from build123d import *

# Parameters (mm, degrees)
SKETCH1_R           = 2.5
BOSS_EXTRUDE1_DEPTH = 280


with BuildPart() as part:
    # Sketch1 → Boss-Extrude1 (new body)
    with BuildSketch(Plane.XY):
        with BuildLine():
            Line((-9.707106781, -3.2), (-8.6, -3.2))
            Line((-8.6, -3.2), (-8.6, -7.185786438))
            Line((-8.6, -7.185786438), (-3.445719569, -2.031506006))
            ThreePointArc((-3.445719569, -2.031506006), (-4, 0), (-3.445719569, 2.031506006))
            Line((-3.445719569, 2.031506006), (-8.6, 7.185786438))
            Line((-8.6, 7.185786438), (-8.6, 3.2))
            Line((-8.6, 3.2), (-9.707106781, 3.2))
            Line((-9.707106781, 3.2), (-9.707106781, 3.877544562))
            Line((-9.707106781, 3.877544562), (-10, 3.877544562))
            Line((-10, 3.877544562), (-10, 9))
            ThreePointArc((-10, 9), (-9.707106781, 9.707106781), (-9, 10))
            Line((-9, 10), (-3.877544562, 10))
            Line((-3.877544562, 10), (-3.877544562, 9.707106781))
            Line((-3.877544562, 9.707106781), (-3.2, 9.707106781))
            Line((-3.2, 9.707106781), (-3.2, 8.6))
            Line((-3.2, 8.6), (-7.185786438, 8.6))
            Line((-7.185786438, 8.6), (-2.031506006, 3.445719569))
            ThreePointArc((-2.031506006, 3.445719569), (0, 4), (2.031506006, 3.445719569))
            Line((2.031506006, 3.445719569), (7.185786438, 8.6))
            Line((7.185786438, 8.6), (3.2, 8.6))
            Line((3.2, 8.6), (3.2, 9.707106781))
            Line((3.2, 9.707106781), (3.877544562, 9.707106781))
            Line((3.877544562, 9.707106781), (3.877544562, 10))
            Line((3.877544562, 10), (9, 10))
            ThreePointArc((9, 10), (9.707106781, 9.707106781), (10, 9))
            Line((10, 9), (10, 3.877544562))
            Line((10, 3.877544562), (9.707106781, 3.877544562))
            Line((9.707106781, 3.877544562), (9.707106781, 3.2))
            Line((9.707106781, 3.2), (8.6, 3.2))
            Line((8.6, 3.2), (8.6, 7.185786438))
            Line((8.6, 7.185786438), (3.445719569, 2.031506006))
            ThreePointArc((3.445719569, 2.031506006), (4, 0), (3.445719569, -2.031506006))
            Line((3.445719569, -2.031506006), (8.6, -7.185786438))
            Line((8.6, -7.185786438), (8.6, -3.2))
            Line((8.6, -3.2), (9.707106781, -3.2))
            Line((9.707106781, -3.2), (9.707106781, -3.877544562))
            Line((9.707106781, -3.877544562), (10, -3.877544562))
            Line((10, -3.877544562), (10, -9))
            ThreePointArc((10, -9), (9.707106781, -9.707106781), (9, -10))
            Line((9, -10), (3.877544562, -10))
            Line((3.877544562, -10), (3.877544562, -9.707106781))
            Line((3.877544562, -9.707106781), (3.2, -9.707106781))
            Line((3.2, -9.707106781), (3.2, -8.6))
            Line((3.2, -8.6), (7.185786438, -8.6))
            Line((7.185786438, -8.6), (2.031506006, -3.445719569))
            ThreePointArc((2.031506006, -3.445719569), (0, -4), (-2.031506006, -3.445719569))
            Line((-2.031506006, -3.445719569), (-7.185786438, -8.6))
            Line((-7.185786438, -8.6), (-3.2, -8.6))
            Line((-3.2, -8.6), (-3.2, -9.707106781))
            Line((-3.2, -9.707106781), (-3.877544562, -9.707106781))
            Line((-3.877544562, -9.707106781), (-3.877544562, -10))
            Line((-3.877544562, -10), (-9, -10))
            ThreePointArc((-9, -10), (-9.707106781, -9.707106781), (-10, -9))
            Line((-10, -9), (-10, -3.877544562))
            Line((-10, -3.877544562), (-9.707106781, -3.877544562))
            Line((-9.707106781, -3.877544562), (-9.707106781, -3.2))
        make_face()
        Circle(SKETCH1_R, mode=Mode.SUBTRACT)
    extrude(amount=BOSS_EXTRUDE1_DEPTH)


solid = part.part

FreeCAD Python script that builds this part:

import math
import FreeCAD as App
import Part
import Sketcher
Q = App.Units.Quantity

doc = App.newDocument("Part")
body = doc.addObject("PartDesign::Body", "Body")

# Sketch on XY plane
sketch1 = body.newObject("Sketcher::SketchObject", "Sketch")
sketch1.AttachmentSupport = (doc.getObject("XY_Plane"), [""])
sketch1.MapMode = "FlatFace"
sketch1.addGeometry([
    Part.LineSegment(App.Vector(-8.6, -3.2, 0), App.Vector(-9.71, -3.2, 0)),  # 0
    Part.LineSegment(App.Vector(-9.71, -3.2, 0), App.Vector(-9.71, -3.88, 0)),  # 1
    Part.LineSegment(App.Vector(-9.71, -3.88, 0), App.Vector(-10, -3.88, 0)),  # 2
    Part.LineSegment(App.Vector(-10, -3.88, 0), App.Vector(-10, -9, 0)),  # 3
    Part.ArcOfCircle(Part.Circle(App.Vector(-9, -9, 0), App.Vector(0, 0, 1), 1), math.radians(-180), math.radians(-90)),  # 4
    Part.LineSegment(App.Vector(-9, -10, 0), App.Vector(-3.88, -10, 0)),  # 5
    Part.LineSegment(App.Vector(-3.88, -10, 0), App.Vector(-3.88, -9.71, 0)),  # 6
    Part.LineSegment(App.Vector(-3.88, -9.71, 0), App.Vector(-3.2, -9.71, 0)),  # 7
    Part.LineSegment(App.Vector(-3.2, -9.71, 0), App.Vector(-3.2, -8.6, 0)),  # 8
    Part.LineSegment(App.Vector(-3.2, -8.6, 0), App.Vector(-7.19, -8.6, 0)),  # 9
    Part.LineSegment(App.Vector(-7.19, -8.6, 0), App.Vector(-2.03, -3.45, 0)),  # 10
    Part.ArcOfCircle(Part.Circle(App.Vector(0, 0, 0), App.Vector(0, 0, 1), 4), math.radians(-121), math.radians(-59)),  # 11
    Part.LineSegment(App.Vector(2.03, -3.45, 0), App.Vector(7.19, -8.6, 0)),  # 12
    Part.LineSegment(App.Vector(7.19, -8.6, 0), App.Vector(3.2, -8.6, 0)),  # 13
    Part.LineSegment(App.Vector(3.2, -8.6, 0), App.Vector(3.2, -9.71, 0)),  # 14
    Part.LineSegment(App.Vector(3.2, -9.71, 0), App.Vector(3.88, -9.71, 0)),  # 15
    Part.LineSegment(App.Vector(3.88, -9.71, 0), App.Vector(3.88, -10, 0)),  # 16
    Part.LineSegment(App.Vector(3.88, -10, 0), App.Vector(9, -10, 0)),  # 17
    Part.ArcOfCircle(Part.Circle(App.Vector(9, -9, 0), App.Vector(0, 0, 1), 1), math.radians(-90), math.radians(0)),  # 18
    Part.LineSegment(App.Vector(10, -9, 0), App.Vector(10, -3.88, 0)),  # 19
    Part.LineSegment(App.Vector(10, -3.88, 0), App.Vector(9.71, -3.88, 0)),  # 20
    Part.LineSegment(App.Vector(9.71, -3.88, 0), App.Vector(9.71, -3.2, 0)),  # 21
    Part.LineSegment(App.Vector(9.71, -3.2, 0), App.Vector(8.6, -3.2, 0)),  # 22
    Part.LineSegment(App.Vector(8.6, -3.2, 0), App.Vector(8.6, -7.19, 0)),  # 23
    Part.LineSegment(App.Vector(8.6, -7.19, 0), App.Vector(3.45, -2.03, 0)),  # 24
    Part.ArcOfCircle(Part.Circle(App.Vector(0, 0, 0), App.Vector(0, 0, 1), 4), math.radians(-31), math.radians(31)),  # 25
    Part.LineSegment(App.Vector(3.45, 2.03, 0), App.Vector(8.6, 7.19, 0)),  # 26
    Part.LineSegment(App.Vector(8.6, 7.19, 0), App.Vector(8.6, 3.2, 0)),  # 27
    Part.LineSegment(App.Vector(8.6, 3.2, 0), App.Vector(9.71, 3.2, 0)),  # 28
    Part.LineSegment(App.Vector(9.71, 3.2, 0), App.Vector(9.71, 3.88, 0)),  # 29
    Part.LineSegment(App.Vector(9.71, 3.88, 0), App.Vector(10, 3.88, 0)),  # 30
    Part.LineSegment(App.Vector(10, 3.88, 0), App.Vector(10, 9, 0)),  # 31
    Part.ArcOfCircle(Part.Circle(App.Vector(9, 9, 0), App.Vector(0, 0, 1), 1), math.radians(0), math.radians(90)),  # 32
    Part.LineSegment(App.Vector(9, 10, 0), App.Vector(3.88, 10, 0)),  # 33
    Part.LineSegment(App.Vector(3.88, 10, 0), App.Vector(3.88, 9.71, 0)),  # 34
    Part.LineSegment(App.Vector(3.88, 9.71, 0), App.Vector(3.2, 9.71, 0)),  # 35
    Part.LineSegment(App.Vector(3.2, 9.71, 0), App.Vector(3.2, 8.6, 0)),  # 36
    Part.LineSegment(App.Vector(3.2, 8.6, 0), App.Vector(7.19, 8.6, 0)),  # 37
    Part.LineSegment(App.Vector(7.19, 8.6, 0), App.Vector(2.03, 3.45, 0)),  # 38
    Part.ArcOfCircle(Part.Circle(App.Vector(0, 0, 0), App.Vector(0, 0, 1), 4), math.radians(59), math.radians(121)),  # 39
    Part.LineSegment(App.Vector(-2.03, 3.45, 0), App.Vector(-7.19, 8.6, 0)),  # 40
    Part.LineSegment(App.Vector(-7.19, 8.6, 0), App.Vector(-3.2, 8.6, 0)),  # 41
    Part.LineSegment(App.Vector(-3.2, 8.6, 0), App.Vector(-3.2, 9.71, 0)),  # 42
    Part.LineSegment(App.Vector(-3.2, 9.71, 0), App.Vector(-3.88, 9.71, 0)),  # 43
    Part.LineSegment(App.Vector(-3.88, 9.71, 0), App.Vector(-3.88, 10, 0)),  # 44
    Part.LineSegment(App.Vector(-3.88, 10, 0), App.Vector(-9, 10, 0)),  # 45
    Part.ArcOfCircle(Part.Circle(App.Vector(-9, 9, 0), App.Vector(0, 0, 1), 1), math.radians(90), math.radians(180)),  # 46
    Part.LineSegment(App.Vector(-10, 9, 0), App.Vector(-10, 3.88, 0)),  # 47
    Part.LineSegment(App.Vector(-10, 3.88, 0), App.Vector(-9.71, 3.88, 0)),  # 48
    Part.LineSegment(App.Vector(-9.71, 3.88, 0), App.Vector(-9.71, 3.2, 0)),  # 49
    Part.LineSegment(App.Vector(-9.71, 3.2, 0), App.Vector(-8.6, 3.2, 0)),  # 50
    Part.LineSegment(App.Vector(-8.6, 3.2, 0), App.Vector(-8.6, 7.19, 0)),  # 51
    Part.LineSegment(App.Vector(-8.6, 7.19, 0), App.Vector(-3.45, 2.03, 0)),  # 52
    Part.ArcOfCircle(Part.Circle(App.Vector(0, 0, 0), App.Vector(0, 0, 1), 4), math.radians(149), math.radians(211)),  # 53
    Part.LineSegment(App.Vector(-3.45, -2.03, 0), App.Vector(-8.6, -7.19, 0)),  # 54
    Part.LineSegment(App.Vector(-8.6, -7.19, 0), App.Vector(-8.6, -3.2, 0)),  # 55
    Part.Circle(App.Vector(0, 0, 0), App.Vector(0, 0, 1), 2.5),  # 56
], False)
sketch1.addConstraint([
    Sketcher.Constraint("Coincident", 0, 2, 1, 1),
    Sketcher.Constraint("Coincident", 1, 2, 2, 1),
    Sketcher.Constraint("Coincident", 2, 2, 3, 1),
    Sketcher.Constraint("Tangent", 3, 2, 4, 1),
    Sketcher.Constraint("Tangent", 4, 2, 5, 1),
    Sketcher.Constraint("Coincident", 5, 2, 6, 1),
    Sketcher.Constraint("Coincident", 6, 2, 7, 1),
    Sketcher.Constraint("Coincident", 7, 2, 8, 1),
    Sketcher.Constraint("Coincident", 8, 2, 9, 1),
    Sketcher.Constraint("Coincident", 9, 2, 10, 1),
    Sketcher.Constraint("Coincident", 10, 2, 11, 1),
    Sketcher.Constraint("Coincident", 11, 2, 12, 1),
    Sketcher.Constraint("Coincident", 12, 2, 13, 1),
    Sketcher.Constraint("Coincident", 13, 2, 14, 1),
    Sketcher.Constraint("Coincident", 14, 2, 15, 1),
    Sketcher.Constraint("Coincident", 15, 2, 16, 1),
    Sketcher.Constraint("Coincident", 16, 2, 17, 1),
    Sketcher.Constraint("Tangent", 17, 2, 18, 1),
    Sketcher.Constraint("Tangent", 18, 2, 19, 1),
    Sketcher.Constraint("Coincident", 19, 2, 20, 1),
    Sketcher.Constraint("Coincident", 20, 2, 21, 1),
    Sketcher.Constraint("Coincident", 21, 2, 22, 1),
    Sketcher.Constraint("Coincident", 22, 2, 23, 1),
    Sketcher.Constraint("Coincident", 23, 2, 24, 1),
    Sketcher.Constraint("Coincident", 24, 2, 25, 1),
    Sketcher.Constraint("Coincident", 25, 2, 26, 1),
    Sketcher.Constraint("Coincident", 26, 2, 27, 1),
    Sketcher.Constraint("Coincident", 27, 2, 28, 1),
    Sketcher.Constraint("Coincident", 28, 2, 29, 1),
    Sketcher.Constraint("Coincident", 29, 2, 30, 1),
    Sketcher.Constraint("Coincident", 30, 2, 31, 1),
    Sketcher.Constraint("Tangent", 31, 2, 32, 1),
    Sketcher.Constraint("Tangent", 32, 2, 33, 1),
    Sketcher.Constraint("Coincident", 33, 2, 34, 1),
    Sketcher.Constraint("Coincident", 34, 2, 35, 1),
    Sketcher.Constraint("Coincident", 35, 2, 36, 1),
    Sketcher.Constraint("Coincident", 36, 2, 37, 1),
    Sketcher.Constraint("Coincident", 37, 2, 38, 1),
    Sketcher.Constraint("Coincident", 38, 2, 39, 1),
    Sketcher.Constraint("Coincident", 39, 2, 40, 1),
    Sketcher.Constraint("Coincident", 40, 2, 41, 1),
    Sketcher.Constraint("Coincident", 41, 2, 42, 1),
    Sketcher.Constraint("Coincident", 42, 2, 43, 1),
    Sketcher.Constraint("Coincident", 43, 2, 44, 1),
    Sketcher.Constraint("Coincident", 44, 2, 45, 1),
    Sketcher.Constraint("Tangent", 45, 2, 46, 1),
    Sketcher.Constraint("Tangent", 46, 2, 47, 1),
    Sketcher.Constraint("Coincident", 47, 2, 48, 1),
    Sketcher.Constraint("Coincident", 48, 2, 49, 1),
    Sketcher.Constraint("Coincident", 49, 2, 50, 1),
    Sketcher.Constraint("Coincident", 50, 2, 51, 1),
    Sketcher.Constraint("Coincident", 51, 2, 52, 1),
    Sketcher.Constraint("Coincident", 52, 2, 53, 1),
    Sketcher.Constraint("Coincident", 53, 2, 54, 1),
    Sketcher.Constraint("Coincident", 54, 2, 55, 1),
    Sketcher.Constraint("Coincident", 55, 2, 0, 1),
    Sketcher.Constraint("Horizontal", 0),
    Sketcher.Constraint("Vertical", 1),
    Sketcher.Constraint("Horizontal", 2),
    Sketcher.Constraint("Vertical", 3),
    Sketcher.Constraint("Horizontal", 5),
    Sketcher.Constraint("Vertical", 6),
    Sketcher.Constraint("Horizontal", 7),
    Sketcher.Constraint("Vertical", 8),
    Sketcher.Constraint("Horizontal", 9),
    Sketcher.Constraint("Horizontal", 13),
    Sketcher.Constraint("Vertical", 14),
    Sketcher.Constraint("Horizontal", 15),
    Sketcher.Constraint("Vertical", 16),
    Sketcher.Constraint("Horizontal", 17),
    Sketcher.Constraint("Vertical", 19),
    Sketcher.Constraint("Horizontal", 20),
    Sketcher.Constraint("Vertical", 21),
    Sketcher.Constraint("Horizontal", 22),
    Sketcher.Constraint("Vertical", 23),
    Sketcher.Constraint("Vertical", 27),
    Sketcher.Constraint("Horizontal", 28),
    Sketcher.Constraint("Vertical", 29),
    Sketcher.Constraint("Horizontal", 30),
    Sketcher.Constraint("Vertical", 31),
    Sketcher.Constraint("Horizontal", 33),
    Sketcher.Constraint("Vertical", 34),
    Sketcher.Constraint("Horizontal", 35),
    Sketcher.Constraint("Vertical", 36),
    Sketcher.Constraint("Horizontal", 37),
    Sketcher.Constraint("Horizontal", 41),
    Sketcher.Constraint("Vertical", 42),
    Sketcher.Constraint("Horizontal", 43),
    Sketcher.Constraint("Vertical", 44),
    Sketcher.Constraint("Horizontal", 45),
    Sketcher.Constraint("Vertical", 47),
    Sketcher.Constraint("Horizontal", 48),
    Sketcher.Constraint("Vertical", 49),
    Sketcher.Constraint("Horizontal", 50),
    Sketcher.Constraint("Vertical", 51),
    Sketcher.Constraint("Vertical", 55),
    Sketcher.Constraint("Coincident", 11, 3, -1, 1),
    Sketcher.Constraint("Coincident", 25, 3, -1, 1),
    Sketcher.Constraint("Coincident", 39, 3, -1, 1),
    Sketcher.Constraint("Coincident", 53, 3, -1, 1),
    Sketcher.Constraint("Coincident", 56, 3, -1, 1),
    Sketcher.Constraint("Equal", 4, 18),
    Sketcher.Constraint("Equal", 11, 25),
    Sketcher.Constraint("Equal", 18, 32),
    Sketcher.Constraint("Equal", 25, 39),
    Sketcher.Constraint("Equal", 32, 46),
    Sketcher.Constraint("Equal", 39, 53),
    Sketcher.Constraint("Symmetric", 4, 3, 32, 3, -1, 1),
    Sketcher.Constraint("Symmetric", 18, 3, 46, 3, -1, 1),
    Sketcher.Constraint("Symmetric", 0, 2, 28, 2, -1, 1),
    Sketcher.Constraint("Symmetric", 6, 2, 34, 2, -1, 1),
    Sketcher.Constraint("Symmetric", 8, 2, 36, 2, -1, 1),
    Sketcher.Constraint("Symmetric", 12, 2, 40, 2, -1, 1),
    Sketcher.Constraint("Symmetric", 14, 2, 42, 2, -1, 1),
    Sketcher.Constraint("Symmetric", 20, 2, 48, 2, -1, 1),
    Sketcher.Constraint("Symmetric", 22, 2, 50, 2, -1, 1),
    Sketcher.Constraint("Symmetric", 26, 2, 54, 2, -1, 1),
    Sketcher.Constraint("Symmetric", 4, 3, 18, 3, -2),
    Sketcher.Constraint("Symmetric", 9, 2, 12, 2, -2),
    Sketcher.Constraint("Symmetric", 7, 2, 14, 2, -2),
    Sketcher.Constraint("Symmetric", 1, 2, 20, 2, -2),
    Sketcher.Constraint("Symmetric", 27, 2, 50, 2, -2),
    Sketcher.Constraint("Perpendicular", 10, 12),
    Sketcher.Constraint("Parallel", 12, 24),
    Sketcher.Constraint("Perpendicular", 24, 26),
    Sketcher.Constraint("Parallel", 26, 38),
    Sketcher.Constraint("Perpendicular", 38, 40),
    Sketcher.Constraint("Parallel", 40, 52),
    Sketcher.Constraint("Perpendicular", 52, 54),
    Sketcher.Constraint("Horizontal", 10, 2, 11, 2),
    Sketcher.Constraint("Horizontal", 38, 2, 39, 2),
    Sketcher.Constraint("Horizontal", 30, 2, 47, 2),
    Sketcher.Constraint("Horizontal", 26, 2, 51, 2),
    Sketcher.Constraint("Horizontal", 24, 2, 53, 2),
    Sketcher.Constraint("Vertical", 16, 2, 33, 2),
    Sketcher.Constraint("Vertical", 6, 2, 43, 2),
    Sketcher.Constraint("Equal", 43, 1),
    Sketcher.Constraint("Equal", 45, 3),
    Sketcher.Constraint("Equal", 48, 6),
    Sketcher.Constraint("Equal", 50, 8),
    Sketcher.Constraint("Equal", 41, 23),
    Sketcher.Constraint("Equal", 12, 24),
    Sketcher.Constraint("Diameter", 56, Q("5 mm")),
    Sketcher.Constraint("Radius", 4, Q("1 mm")),
    Sketcher.Constraint("Radius", 11, Q("4 mm")),
    Sketcher.Constraint("DistanceX", 4, 3, -1, 1, Q("9 mm")),
    Sketcher.Constraint("DistanceY", 0, 2, -1, 1, Q("3.2 mm")),
    Sketcher.Constraint("DistanceY", 8, 2, -1, 1, Q("8.6 mm")),
    Sketcher.Constraint("DistanceX", 0, 2, 0, 1, Q("1.107107 mm")),
    Sketcher.Constraint("DistanceX", 5, 1, 5, 2, Q("5.122455 mm")),
    Sketcher.Constraint("DistanceX", 9, 2, 9, 1, Q("3.985786 mm")),
])
pad1 = body.newObject("PartDesign::Pad", "Pad")
pad1.Profile = sketch1
pad1.Length = 280

doc.recompute()
